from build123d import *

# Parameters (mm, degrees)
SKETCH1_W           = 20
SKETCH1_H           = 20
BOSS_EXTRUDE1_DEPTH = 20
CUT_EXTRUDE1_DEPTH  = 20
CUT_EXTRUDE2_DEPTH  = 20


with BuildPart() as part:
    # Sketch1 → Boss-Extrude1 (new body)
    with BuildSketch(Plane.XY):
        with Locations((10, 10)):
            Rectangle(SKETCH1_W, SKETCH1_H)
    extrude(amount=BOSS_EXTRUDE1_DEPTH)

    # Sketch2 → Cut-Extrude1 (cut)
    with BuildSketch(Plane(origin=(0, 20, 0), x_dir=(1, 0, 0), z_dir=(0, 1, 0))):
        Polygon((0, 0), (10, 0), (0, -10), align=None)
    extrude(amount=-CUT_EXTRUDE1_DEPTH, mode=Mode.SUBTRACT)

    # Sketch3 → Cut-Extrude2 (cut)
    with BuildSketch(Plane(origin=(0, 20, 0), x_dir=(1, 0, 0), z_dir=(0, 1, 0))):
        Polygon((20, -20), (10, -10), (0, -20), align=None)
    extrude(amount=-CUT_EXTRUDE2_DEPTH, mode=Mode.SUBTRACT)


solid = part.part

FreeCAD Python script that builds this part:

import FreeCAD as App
import Part
import Sketcher
from FreeCAD import Vector
Q = App.Units.Quantity

doc = App.newDocument("Part")
body = doc.addObject("PartDesign::Body", "Body")

# Sketch on XY plane
sketch1 = body.newObject("Sketcher::SketchObject", "Sketch")
sketch1.AttachmentSupport = (doc.getObject("XY_Plane"), [""])
sketch1.MapMode = "FlatFace"
sketch1.addGeometry([
    Part.LineSegment(Vector(0, 20, 0), Vector(0, 0, 0)),
    Part.LineSegment(Vector(0, 0, 0), Vector(20, 0, 0)),
    Part.LineSegment(Vector(20, 0, 0), Vector(20, 20, 0)),
    Part.LineSegment(Vector(20, 20, 0), Vector(0, 20, 0)),
], False)
sketch1.addConstraint([
    Sketcher.Constraint("Coincident", 0, 2, 1, 1),
    Sketcher.Constraint("Coincident", 1, 2, 2, 1),
    Sketcher.Constraint("Coincident", 2, 2, 3, 1),
    Sketcher.Constraint("Coincident", 3, 2, 0, 1),
    Sketcher.Constraint("Vertical", 0),
    Sketcher.Constraint("Horizontal", 1),
    Sketcher.Constraint("Vertical", 2),
    Sketcher.Constraint("Horizontal", 3),
    Sketcher.Constraint("Coincident", 0, 2, -1, 1),
    Sketcher.Constraint("Equal", 3, 0),
    Sketcher.Constraint("DistanceX", 1, 1, 1, 2, Q("20 mm")),
])
pad1 = body.newObject("PartDesign::Pad", "Pad")
pad1.Profile = sketch1
pad1.Length = 20

# Sketch on XZ plane
sketch2 = body.newObject("Sketcher::SketchObject", "Sketch001")
sketch2.AttachmentSupport = (doc.getObject("XZ_Plane"), [""])
sketch2.MapMode = "FlatFace"
sketch2.AttachmentOffset = App.Placement(Vector(0, 0, -20), App.Rotation())
sketch2.addGeometry([
    Part.LineSegment(Vector(10, 0, 0), Vector(0, 0, 0)),
    Part.LineSegment(Vector(0, 0, 0), Vector(0, 10, 0)),
    Part.LineSegment(Vector(0, 10, 0), Vector(10, 0, 0)),
], False)
sketch2.addConstraint([
    Sketcher.Constraint("Coincident", 0, 2, 1, 1),
    Sketcher.Constraint("Coincident", 1, 2, 2, 1),
    Sketcher.Constraint("Coincident", 2, 2, 0, 1),
    Sketcher.Constraint("Horizontal", 0),
    Sketcher.Constraint("Vertical", 1),
    Sketcher.Constraint("Coincident", 0, 2, -1, 1),
    Sketcher.Constraint("Equal", 0, 1),
    Sketcher.Constraint("DistanceX", 0, 2, 0, 1, Q("10 mm")),
])
pocket1 = body.newObject("PartDesign::Pocket", "Pocket")
pocket1.Profile = sketch2
pocket1.Length = 20
pocket1.Reversed = True

# Sketch on XZ plane
sketch3 = body.newObject("Sketcher::SketchObject", "Sketch002")
sketch3.AttachmentSupport = (doc.getObject("XZ_Plane"), [""])
sketch3.MapMode = "FlatFace"
sketch3.AttachmentOffset = App.Placement(Vector(0, 0, -20), App.Rotation())
sketch3.addGeometry([
    Part.LineSegment(Vector(20, 20, 0), Vector(10, 10, 0)),
    Part.LineSegment(Vector(10, 10, 0), Vector(0, 20, 0)),
    Part.LineSegment(Vector(0, 20, 0), Vector(20, 20, 0)),
], False)
sketch3.addConstraint([
    Sketcher.Constraint("Coincident", 0, 2, 1, 1),
    Sketcher.Constraint("Coincident", 1, 2, 2, 1),
    Sketcher.Constraint("Coincident", 2, 2, 0, 1),
    Sketcher.Constraint("Horizontal", 2),
    Sketcher.Constraint("PointOnObject", 1, 2, -2),
    Sketcher.Constraint("Perpendicular", 0, 1),
    Sketcher.Constraint("Equal", 0, 1),
    Sketcher.Constraint("DistanceX", 2, 1, 2, 2, Q("20 mm")),
    Sketcher.Constraint("DistanceY", -1, 1, 0, 2, Q("10 mm")),
])
pocket2 = body.newObject("PartDesign::Pocket", "Pocket001")
pocket2.Profile = sketch3
pocket2.Length = 20
pocket2.Reversed = True

doc.recompute()
